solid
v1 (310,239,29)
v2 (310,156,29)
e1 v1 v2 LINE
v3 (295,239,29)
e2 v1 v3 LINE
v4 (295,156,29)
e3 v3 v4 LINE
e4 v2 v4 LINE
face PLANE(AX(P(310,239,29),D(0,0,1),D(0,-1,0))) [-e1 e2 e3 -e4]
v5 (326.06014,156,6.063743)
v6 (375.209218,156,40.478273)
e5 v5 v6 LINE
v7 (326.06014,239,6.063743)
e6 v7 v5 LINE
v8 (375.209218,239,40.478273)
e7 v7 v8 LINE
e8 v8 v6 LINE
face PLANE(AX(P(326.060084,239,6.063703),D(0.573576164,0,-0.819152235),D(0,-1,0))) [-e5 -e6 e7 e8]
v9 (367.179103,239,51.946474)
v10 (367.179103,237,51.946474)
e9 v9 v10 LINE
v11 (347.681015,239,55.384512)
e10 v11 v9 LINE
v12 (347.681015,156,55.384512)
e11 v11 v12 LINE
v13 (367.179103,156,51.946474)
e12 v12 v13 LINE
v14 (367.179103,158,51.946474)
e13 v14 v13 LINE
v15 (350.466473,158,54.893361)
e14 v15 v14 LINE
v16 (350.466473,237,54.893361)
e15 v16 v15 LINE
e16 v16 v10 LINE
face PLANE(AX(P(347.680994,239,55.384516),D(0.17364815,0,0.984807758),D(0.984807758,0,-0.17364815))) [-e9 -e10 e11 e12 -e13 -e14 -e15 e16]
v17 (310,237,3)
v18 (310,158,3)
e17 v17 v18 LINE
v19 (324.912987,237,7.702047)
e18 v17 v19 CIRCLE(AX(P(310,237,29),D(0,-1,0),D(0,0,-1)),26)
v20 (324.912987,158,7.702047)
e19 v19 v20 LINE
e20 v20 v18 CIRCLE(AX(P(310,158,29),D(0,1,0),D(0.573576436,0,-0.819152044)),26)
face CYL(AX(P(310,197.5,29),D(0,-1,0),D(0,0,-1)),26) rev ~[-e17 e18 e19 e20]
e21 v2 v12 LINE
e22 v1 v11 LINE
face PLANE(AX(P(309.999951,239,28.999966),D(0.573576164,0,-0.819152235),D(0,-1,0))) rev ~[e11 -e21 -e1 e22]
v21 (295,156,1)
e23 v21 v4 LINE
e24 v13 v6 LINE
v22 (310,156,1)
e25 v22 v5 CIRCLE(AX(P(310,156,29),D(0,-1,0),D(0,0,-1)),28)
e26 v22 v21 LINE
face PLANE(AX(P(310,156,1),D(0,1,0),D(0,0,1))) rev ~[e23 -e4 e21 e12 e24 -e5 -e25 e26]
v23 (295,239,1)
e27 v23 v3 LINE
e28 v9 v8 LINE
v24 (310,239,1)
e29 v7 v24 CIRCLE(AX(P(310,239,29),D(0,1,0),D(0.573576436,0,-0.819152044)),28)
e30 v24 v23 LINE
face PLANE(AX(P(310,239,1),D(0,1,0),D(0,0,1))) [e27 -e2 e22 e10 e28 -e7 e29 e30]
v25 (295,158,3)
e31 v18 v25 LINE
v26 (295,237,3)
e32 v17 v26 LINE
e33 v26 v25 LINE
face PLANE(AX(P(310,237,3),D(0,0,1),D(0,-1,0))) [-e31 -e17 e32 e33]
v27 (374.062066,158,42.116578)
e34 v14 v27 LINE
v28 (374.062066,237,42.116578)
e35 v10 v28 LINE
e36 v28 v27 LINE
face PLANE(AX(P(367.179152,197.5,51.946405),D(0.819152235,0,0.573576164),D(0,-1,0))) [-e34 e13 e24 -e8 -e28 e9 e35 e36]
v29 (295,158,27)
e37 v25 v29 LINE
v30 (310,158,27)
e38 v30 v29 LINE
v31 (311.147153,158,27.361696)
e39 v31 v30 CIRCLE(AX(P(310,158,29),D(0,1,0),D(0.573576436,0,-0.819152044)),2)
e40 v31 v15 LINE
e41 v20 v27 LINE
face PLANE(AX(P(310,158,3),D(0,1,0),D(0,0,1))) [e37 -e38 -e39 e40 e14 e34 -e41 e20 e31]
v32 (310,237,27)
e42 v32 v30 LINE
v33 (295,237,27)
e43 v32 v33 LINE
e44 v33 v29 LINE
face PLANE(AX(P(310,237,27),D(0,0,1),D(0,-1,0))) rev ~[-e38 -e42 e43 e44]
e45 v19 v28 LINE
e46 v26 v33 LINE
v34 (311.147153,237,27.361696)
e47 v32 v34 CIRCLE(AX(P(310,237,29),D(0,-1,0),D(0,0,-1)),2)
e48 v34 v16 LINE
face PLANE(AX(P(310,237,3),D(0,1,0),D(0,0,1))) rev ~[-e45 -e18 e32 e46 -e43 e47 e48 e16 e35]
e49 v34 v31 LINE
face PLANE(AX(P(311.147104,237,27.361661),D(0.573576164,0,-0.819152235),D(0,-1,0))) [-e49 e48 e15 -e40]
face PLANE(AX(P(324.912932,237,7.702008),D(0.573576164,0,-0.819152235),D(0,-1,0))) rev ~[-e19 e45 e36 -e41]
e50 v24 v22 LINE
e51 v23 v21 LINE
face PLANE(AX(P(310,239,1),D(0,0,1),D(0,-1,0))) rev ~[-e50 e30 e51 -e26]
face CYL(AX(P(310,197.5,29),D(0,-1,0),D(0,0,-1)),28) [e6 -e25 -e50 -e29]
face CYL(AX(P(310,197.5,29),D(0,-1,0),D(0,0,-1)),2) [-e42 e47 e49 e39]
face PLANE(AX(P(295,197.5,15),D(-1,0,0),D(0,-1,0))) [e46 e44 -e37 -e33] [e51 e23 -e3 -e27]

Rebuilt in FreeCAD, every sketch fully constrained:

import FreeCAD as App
import Part
import Sketcher
Q = App.Units.Quantity

doc = App.newDocument("Part")
params = doc.addObject("Spreadsheet::Sheet", "Params")
for row, (alias, value) in enumerate([
    ("sketch1_width", "83 mm"),
    ("sketch1_width2", "79 mm"),
    ("sketch1_height", "28 mm"),
    ("sketch1_height2", "24 mm"),
    ("revolution_angle", "35 deg"),
    ("sketch2_width", "83 mm"),
    ("sketch2_width2", "79 mm"),
    ("sketch2_height", "28 mm"),
    ("sketch2_height2", "24 mm"),
    ("pad1_length", "60 mm"),
    ("sketch3_length", "13.999999 mm"),
    ("sketch4_width", "83 mm"),
    ("sketch4_width2", "79 mm"),
    ("sketch4_height", "28 mm"),
    ("sketch4_height2", "24 mm"),
    ("pad2_length", "15 mm"),
], start=1):
    params.set(f"A{row}", alias)
    params.set(f"B{row}", "=" + value)
    params.setAlias(f"B{row}", alias)

body = doc.addObject("PartDesign::Body", "Body")

# Sketch on YZ plane
sketch1 = doc.addObject("Sketcher::SketchObject", "Sketch")
body.addObject(sketch1)
sketch1.AttachmentSupport = (doc.YZ_Plane, [""])
sketch1.MapMode = "FlatFace"
sketch1.AttachmentOffset = App.Placement(App.Vector(0, 0, 310), App.Rotation())
sketch1.addGeometry([
    Part.LineSegment(App.Vector(156, 29, 0), App.Vector(156, 1, 0)),  # 0
    Part.LineSegment(App.Vector(156, 1, 0), App.Vector(239, 1, 0)),  # 1
    Part.LineSegment(App.Vector(239, 1, 0), App.Vector(239, 29, 0)),  # 2
    Part.LineSegment(App.Vector(239, 29, 0), App.Vector(156, 29, 0)),  # 3
    Part.LineSegment(App.Vector(237, 3, 0), App.Vector(158, 3, 0)),  # 4
    Part.LineSegment(App.Vector(158, 3, 0), App.Vector(158, 27, 0)),  # 5
    Part.LineSegment(App.Vector(158, 27, 0), App.Vector(237, 27, 0)),  # 6
    Part.LineSegment(App.Vector(237, 27, 0), App.Vector(237, 3, 0)),  # 7
], False)
sketch1.addGeometry(Part.LineSegment(App.Vector(156, 1, 0), App.Vector(239, 1, 0)), True)  # axis
sketch1.addConstraint([
    Sketcher.Constraint("Coincident", 0, 2, 1, 1),
    Sketcher.Constraint("Coincident", 1, 2, 2, 1),
    Sketcher.Constraint("Coincident", 2, 2, 3, 1),
    Sketcher.Constraint("Coincident", 3, 2, 0, 1),
    Sketcher.Constraint("Coincident", 4, 2, 5, 1),
    Sketcher.Constraint("Coincident", 5, 2, 6, 1),
    Sketcher.Constraint("Coincident", 6, 2, 7, 1),
    Sketcher.Constraint("Coincident", 7, 2, 4, 1),
    Sketcher.Constraint("Vertical", 0),
    Sketcher.Constraint("Horizontal", 1),
    Sketcher.Constraint("Vertical", 2),
    Sketcher.Constraint("Horizontal", 3),
    Sketcher.Constraint("Horizontal", 4),
    Sketcher.Constraint("Vertical", 5),
    Sketcher.Constraint("Horizontal", 6),
    Sketcher.Constraint("Vertical", 7),
    Sketcher.Constraint("Horizontal", 8),
    Sketcher.Constraint("Coincident", 8, 1, 0, 2),
    Sketcher.Constraint("Vertical", 2, 2, 8, 2),
    Sketcher.Constraint("DistanceX", 1, 1, 1, 2, Q("83 mm")),
    Sketcher.Constraint("DistanceX", 4, 2, 4, 1, Q("79 mm")),
    Sketcher.Constraint("DistanceY", 0, 2, 0, 1, Q("28 mm")),
    Sketcher.Constraint("DistanceY", 5, 1, 5, 2, Q("24 mm")),
    Sketcher.Constraint("DistanceX", -1, 1, 0, 2, Q("156 mm")),
    Sketcher.Constraint("DistanceY", -1, 1, 0, 2, Q("1 mm")),
    Sketcher.Constraint("DistanceX", -1, 1, 4, 2, Q("158 mm")),
    Sketcher.Constraint("DistanceY", -1, 1, 4, 2, Q("3 mm")),
])
sketch1.setExpression("Constraints[19]", "Params.sketch1_width")
sketch1.setExpression("Constraints[20]", "Params.sketch1_width2")
sketch1.setExpression("Constraints[21]", "Params.sketch1_height")
sketch1.setExpression("Constraints[22]", "Params.sketch1_height2")
revolution = doc.addObject("PartDesign::Revolution", "Revolution")
body.addObject(revolution)
revolution.Profile = sketch1
revolution.ReferenceAxis = (sketch1, ["Axis0"])
revolution.setExpression("Angle", "Params.revolution_angle")

# Sketch on an angled plane
sketch2 = doc.addObject("Sketcher::SketchObject", "Sketch001")
body.addObject(sketch2)
sketch2.Placement = App.Placement(App.Vector(207.543276, 0, -145.323366), App.Rotation(App.Vector(0, 1, 0), App.Vector(0.573576164, 0, 0.819152235), App.Vector(0.819152235, 0, -0.573576164), "ZXY"))
sketch2.addGeometry([
    Part.LineSegment(App.Vector(156, 207, 0), App.Vector(156, 179, 0)),  # 0
    Part.LineSegment(App.Vector(156, 179, 0), App.Vector(239, 179, 0)),  # 1
    Part.LineSegment(App.Vector(239, 179, 0), App.Vector(239, 207, 0)),  # 2
    Part.LineSegment(App.Vector(239, 207, 0), App.Vector(156, 207, 0)),  # 3
    Part.LineSegment(App.Vector(237, 181, 0), App.Vector(158, 181, 0)),  # 4
    Part.LineSegment(App.Vector(158, 181, 0), App.Vector(158, 205, 0)),  # 5
    Part.LineSegment(App.Vector(158, 205, 0), App.Vector(237, 205, 0)),  # 6
    Part.LineSegment(App.Vector(237, 205, 0), App.Vector(237, 181, 0)),  # 7
], False)
sketch2.addConstraint([
    Sketcher.Constraint("Coincident", 0, 2, 1, 1),
    Sketcher.Constraint("Coincident", 1, 2, 2, 1),
    Sketcher.Constraint("Coincident", 2, 2, 3, 1),
    Sketcher.Constraint("Coincident", 3, 2, 0, 1),
    Sketcher.Constraint("Coincident", 4, 2, 5, 1),
    Sketcher.Constraint("Coincident", 5, 2, 6, 1),
    Sketcher.Constraint("Coincident", 6, 2, 7, 1),
    Sketcher.Constraint("Coincident", 7, 2, 4, 1),
    Sketcher.Constraint("Vertical", 0),
    Sketcher.Constraint("Horizontal", 1),
    Sketcher.Constraint("Vertical", 2),
    Sketcher.Constraint("Horizontal", 3),
    Sketcher.Constraint("Horizontal", 4),
    Sketcher.Constraint("Vertical", 5),
    Sketcher.Constraint("Horizontal", 6),
    Sketcher.Constraint("Vertical", 7),
    Sketcher.Constraint("DistanceX", 1, 1, 1, 2, Q("83 mm")),
    Sketcher.Constraint("DistanceX", 4, 2, 4, 1, Q("79 mm")),
    Sketcher.Constraint("DistanceY", 0, 2, 0, 1, Q("28 mm")),
    Sketcher.Constraint("DistanceY", 5, 1, 5, 2, Q("24 mm")),
    Sketcher.Constraint("DistanceX", -1, 1, 0, 2, Q("156 mm")),
    Sketcher.Constraint("DistanceX", -1, 1, 4, 2, Q("158 mm")),
    Sketcher.Constraint("DistanceY", 0, 2, 4, 2, Q("2 mm")),
    Sketcher.Constraint("DistanceY", -1, 1, 0, 2, Q("178.627847 mm")),
])
sketch2.setExpression("Constraints[16]", "Params.sketch2_width")
sketch2.setExpression("Constraints[17]", "Params.sketch2_width2")
sketch2.setExpression("Constraints[18]", "Params.sketch2_height")
sketch2.setExpression("Constraints[19]", "Params.sketch2_height2")
pad1 = doc.addObject("PartDesign::Pad", "Pad")
body.addObject(pad1)
pad1.Profile = sketch2
pad1.setExpression("Length", "Params.pad1_length")

# Sketch on XZ plane
sketch3 = doc.addObject("Sketcher::SketchObject", "Sketch002")
body.addObject(sketch3)
sketch3.AttachmentSupport = (doc.XZ_Plane, [""])
sketch3.MapMode = "FlatFace"
sketch3.AttachmentOffset = App.Placement(App.Vector(0, 0, -156), App.Rotation())
sketch3.addGeometry([
    Part.LineSegment(App.Vector(359, -33, 0), App.Vector(367, -22, 0)),
    Part.LineSegment(App.Vector(367, -22, 0), App.Vector(348, -25, 0)),
    Part.LineSegment(App.Vector(348, -25, 0), App.Vector(359, -33, 0)),
], False)
sketch3.addConstraint([
    Sketcher.Constraint("Coincident", 0, 2, 1, 1),
    Sketcher.Constraint("Coincident", 1, 2, 2, 1),
    Sketcher.Constraint("Coincident", 2, 2, 0, 1),
    Sketcher.Constraint("Perpendicular", 0, 2),
    Sketcher.Constraint("Equal", 0, 2),
    Sketcher.Constraint("Angle", 0, Q("54.999999 deg")),
    Sketcher.Constraint("Distance", 0, Q("13.999999 mm")),
    Sketcher.Constraint("DistanceY", 0, 2, -1, 1, Q("21.946458 mm")),
    Sketcher.Constraint("DistanceX", -1, 1, 0, 2, Q("367.179193 mm")),
])
sketch3.setExpression("Constraints[6]", "Params.sketch3_length")
pocket1 = doc.addObject("PartDesign::Pocket", "Pocket")
body.addObject(pocket1)
pocket1.Profile = sketch3
pocket1.Type = "ThroughAll"

# Sketch on YZ plane
sketch4 = doc.addObject("Sketcher::SketchObject", "Sketch003")
body.addObject(sketch4)
sketch4.AttachmentSupport = (doc.YZ_Plane, [""])
sketch4.MapMode = "FlatFace"
sketch4.AttachmentOffset = App.Placement(App.Vector(0, 0, 310), App.Rotation())
sketch4.addGeometry([
    Part.LineSegment(App.Vector(156, 1, 0), App.Vector(156, 29, 0)),  # 0
    Part.LineSegment(App.Vector(156, 29, 0), App.Vector(239, 29, 0)),  # 1
    Part.LineSegment(App.Vector(239, 29, 0), App.Vector(239, 1, 0)),  # 2
    Part.LineSegment(App.Vector(239, 1, 0), App.Vector(156, 1, 0)),  # 3
    Part.LineSegment(App.Vector(237, 27, 0), App.Vector(158, 27, 0)),  # 4
    Part.LineSegment(App.Vector(158, 27, 0), App.Vector(158, 3, 0)),  # 5
    Part.LineSegment(App.Vector(158, 3, 0), App.Vector(237, 3, 0)),  # 6
    Part.LineSegment(App.Vector(237, 3, 0), App.Vector(237, 27, 0)),  # 7
], False)
sketch4.addConstraint([
    Sketcher.Constraint("Coincident", 0, 2, 1, 1),
    Sketcher.Constraint("Coincident", 1, 2, 2, 1),
    Sketcher.Constraint("Coincident", 2, 2, 3, 1),
    Sketcher.Constraint("Coincident", 3, 2, 0, 1),
    Sketcher.Constraint("Coincident", 4, 2, 5, 1),
    Sketcher.Constraint("Coincident", 5, 2, 6, 1),
    Sketcher.Constraint("Coincident", 6, 2, 7, 1),
    Sketcher.Constraint("Coincident", 7, 2, 4, 1),
    Sketcher.Constraint("Vertical", 0),
    Sketcher.Constraint("Horizontal", 1),
    Sketcher.Constraint("Vertical", 2),
    Sketcher.Constraint("Horizontal", 3),
    Sketcher.Constraint("Horizontal", 4),
    Sketcher.Constraint("Vertical", 5),
    Sketcher.Constraint("Horizontal", 6),
    Sketcher.Constraint("Vertical", 7),
    Sketcher.Constraint("DistanceX", 1, 1, 1, 2, Q("83 mm")),
    Sketcher.Constraint("DistanceX", 4, 2, 4, 1, Q("79 mm")),
    Sketcher.Constraint("DistanceY", 0, 1, 0, 2, Q("28 mm")),
    Sketcher.Constraint("DistanceY", 5, 2, 5, 1, Q("24 mm")),
    Sketcher.Constraint("DistanceX", -1, 1, 0, 2, Q("156 mm")),
    Sketcher.Constraint("DistanceY", -1, 1, 0, 2, Q("29 mm")),
    Sketcher.Constraint("DistanceX", -1, 1, 4, 2, Q("158 mm")),
    Sketcher.Constraint("DistanceY", -1, 1, 4, 2, Q("27 mm")),
])
sketch4.setExpression("Constraints[16]", "Params.sketch4_width")
sketch4.setExpression("Constraints[17]", "Params.sketch4_width2")
sketch4.setExpression("Constraints[18]", "Params.sketch4_height")
sketch4.setExpression("Constraints[19]", "Params.sketch4_height2")
pad2 = doc.addObject("PartDesign::Pad", "Pad001")
body.addObject(pad2)
pad2.Profile = sketch4
pad2.setExpression("Length", "Params.pad2_length")
pad2.Reversed = True
body2 = doc.addObject("PartDesign::Body", "Body001")
doc.recompute()

body.Placement = App.Placement(App.Vector(0, 395, 30), App.Rotation(App.Vector(1, 0, 0), 180))
boolean = doc.addObject("PartDesign::Boolean", "Boolean")
body2.addObject(boolean)
boolean.Type = "Fuse"
boolean.addObjects([body])

doc.recompute()
